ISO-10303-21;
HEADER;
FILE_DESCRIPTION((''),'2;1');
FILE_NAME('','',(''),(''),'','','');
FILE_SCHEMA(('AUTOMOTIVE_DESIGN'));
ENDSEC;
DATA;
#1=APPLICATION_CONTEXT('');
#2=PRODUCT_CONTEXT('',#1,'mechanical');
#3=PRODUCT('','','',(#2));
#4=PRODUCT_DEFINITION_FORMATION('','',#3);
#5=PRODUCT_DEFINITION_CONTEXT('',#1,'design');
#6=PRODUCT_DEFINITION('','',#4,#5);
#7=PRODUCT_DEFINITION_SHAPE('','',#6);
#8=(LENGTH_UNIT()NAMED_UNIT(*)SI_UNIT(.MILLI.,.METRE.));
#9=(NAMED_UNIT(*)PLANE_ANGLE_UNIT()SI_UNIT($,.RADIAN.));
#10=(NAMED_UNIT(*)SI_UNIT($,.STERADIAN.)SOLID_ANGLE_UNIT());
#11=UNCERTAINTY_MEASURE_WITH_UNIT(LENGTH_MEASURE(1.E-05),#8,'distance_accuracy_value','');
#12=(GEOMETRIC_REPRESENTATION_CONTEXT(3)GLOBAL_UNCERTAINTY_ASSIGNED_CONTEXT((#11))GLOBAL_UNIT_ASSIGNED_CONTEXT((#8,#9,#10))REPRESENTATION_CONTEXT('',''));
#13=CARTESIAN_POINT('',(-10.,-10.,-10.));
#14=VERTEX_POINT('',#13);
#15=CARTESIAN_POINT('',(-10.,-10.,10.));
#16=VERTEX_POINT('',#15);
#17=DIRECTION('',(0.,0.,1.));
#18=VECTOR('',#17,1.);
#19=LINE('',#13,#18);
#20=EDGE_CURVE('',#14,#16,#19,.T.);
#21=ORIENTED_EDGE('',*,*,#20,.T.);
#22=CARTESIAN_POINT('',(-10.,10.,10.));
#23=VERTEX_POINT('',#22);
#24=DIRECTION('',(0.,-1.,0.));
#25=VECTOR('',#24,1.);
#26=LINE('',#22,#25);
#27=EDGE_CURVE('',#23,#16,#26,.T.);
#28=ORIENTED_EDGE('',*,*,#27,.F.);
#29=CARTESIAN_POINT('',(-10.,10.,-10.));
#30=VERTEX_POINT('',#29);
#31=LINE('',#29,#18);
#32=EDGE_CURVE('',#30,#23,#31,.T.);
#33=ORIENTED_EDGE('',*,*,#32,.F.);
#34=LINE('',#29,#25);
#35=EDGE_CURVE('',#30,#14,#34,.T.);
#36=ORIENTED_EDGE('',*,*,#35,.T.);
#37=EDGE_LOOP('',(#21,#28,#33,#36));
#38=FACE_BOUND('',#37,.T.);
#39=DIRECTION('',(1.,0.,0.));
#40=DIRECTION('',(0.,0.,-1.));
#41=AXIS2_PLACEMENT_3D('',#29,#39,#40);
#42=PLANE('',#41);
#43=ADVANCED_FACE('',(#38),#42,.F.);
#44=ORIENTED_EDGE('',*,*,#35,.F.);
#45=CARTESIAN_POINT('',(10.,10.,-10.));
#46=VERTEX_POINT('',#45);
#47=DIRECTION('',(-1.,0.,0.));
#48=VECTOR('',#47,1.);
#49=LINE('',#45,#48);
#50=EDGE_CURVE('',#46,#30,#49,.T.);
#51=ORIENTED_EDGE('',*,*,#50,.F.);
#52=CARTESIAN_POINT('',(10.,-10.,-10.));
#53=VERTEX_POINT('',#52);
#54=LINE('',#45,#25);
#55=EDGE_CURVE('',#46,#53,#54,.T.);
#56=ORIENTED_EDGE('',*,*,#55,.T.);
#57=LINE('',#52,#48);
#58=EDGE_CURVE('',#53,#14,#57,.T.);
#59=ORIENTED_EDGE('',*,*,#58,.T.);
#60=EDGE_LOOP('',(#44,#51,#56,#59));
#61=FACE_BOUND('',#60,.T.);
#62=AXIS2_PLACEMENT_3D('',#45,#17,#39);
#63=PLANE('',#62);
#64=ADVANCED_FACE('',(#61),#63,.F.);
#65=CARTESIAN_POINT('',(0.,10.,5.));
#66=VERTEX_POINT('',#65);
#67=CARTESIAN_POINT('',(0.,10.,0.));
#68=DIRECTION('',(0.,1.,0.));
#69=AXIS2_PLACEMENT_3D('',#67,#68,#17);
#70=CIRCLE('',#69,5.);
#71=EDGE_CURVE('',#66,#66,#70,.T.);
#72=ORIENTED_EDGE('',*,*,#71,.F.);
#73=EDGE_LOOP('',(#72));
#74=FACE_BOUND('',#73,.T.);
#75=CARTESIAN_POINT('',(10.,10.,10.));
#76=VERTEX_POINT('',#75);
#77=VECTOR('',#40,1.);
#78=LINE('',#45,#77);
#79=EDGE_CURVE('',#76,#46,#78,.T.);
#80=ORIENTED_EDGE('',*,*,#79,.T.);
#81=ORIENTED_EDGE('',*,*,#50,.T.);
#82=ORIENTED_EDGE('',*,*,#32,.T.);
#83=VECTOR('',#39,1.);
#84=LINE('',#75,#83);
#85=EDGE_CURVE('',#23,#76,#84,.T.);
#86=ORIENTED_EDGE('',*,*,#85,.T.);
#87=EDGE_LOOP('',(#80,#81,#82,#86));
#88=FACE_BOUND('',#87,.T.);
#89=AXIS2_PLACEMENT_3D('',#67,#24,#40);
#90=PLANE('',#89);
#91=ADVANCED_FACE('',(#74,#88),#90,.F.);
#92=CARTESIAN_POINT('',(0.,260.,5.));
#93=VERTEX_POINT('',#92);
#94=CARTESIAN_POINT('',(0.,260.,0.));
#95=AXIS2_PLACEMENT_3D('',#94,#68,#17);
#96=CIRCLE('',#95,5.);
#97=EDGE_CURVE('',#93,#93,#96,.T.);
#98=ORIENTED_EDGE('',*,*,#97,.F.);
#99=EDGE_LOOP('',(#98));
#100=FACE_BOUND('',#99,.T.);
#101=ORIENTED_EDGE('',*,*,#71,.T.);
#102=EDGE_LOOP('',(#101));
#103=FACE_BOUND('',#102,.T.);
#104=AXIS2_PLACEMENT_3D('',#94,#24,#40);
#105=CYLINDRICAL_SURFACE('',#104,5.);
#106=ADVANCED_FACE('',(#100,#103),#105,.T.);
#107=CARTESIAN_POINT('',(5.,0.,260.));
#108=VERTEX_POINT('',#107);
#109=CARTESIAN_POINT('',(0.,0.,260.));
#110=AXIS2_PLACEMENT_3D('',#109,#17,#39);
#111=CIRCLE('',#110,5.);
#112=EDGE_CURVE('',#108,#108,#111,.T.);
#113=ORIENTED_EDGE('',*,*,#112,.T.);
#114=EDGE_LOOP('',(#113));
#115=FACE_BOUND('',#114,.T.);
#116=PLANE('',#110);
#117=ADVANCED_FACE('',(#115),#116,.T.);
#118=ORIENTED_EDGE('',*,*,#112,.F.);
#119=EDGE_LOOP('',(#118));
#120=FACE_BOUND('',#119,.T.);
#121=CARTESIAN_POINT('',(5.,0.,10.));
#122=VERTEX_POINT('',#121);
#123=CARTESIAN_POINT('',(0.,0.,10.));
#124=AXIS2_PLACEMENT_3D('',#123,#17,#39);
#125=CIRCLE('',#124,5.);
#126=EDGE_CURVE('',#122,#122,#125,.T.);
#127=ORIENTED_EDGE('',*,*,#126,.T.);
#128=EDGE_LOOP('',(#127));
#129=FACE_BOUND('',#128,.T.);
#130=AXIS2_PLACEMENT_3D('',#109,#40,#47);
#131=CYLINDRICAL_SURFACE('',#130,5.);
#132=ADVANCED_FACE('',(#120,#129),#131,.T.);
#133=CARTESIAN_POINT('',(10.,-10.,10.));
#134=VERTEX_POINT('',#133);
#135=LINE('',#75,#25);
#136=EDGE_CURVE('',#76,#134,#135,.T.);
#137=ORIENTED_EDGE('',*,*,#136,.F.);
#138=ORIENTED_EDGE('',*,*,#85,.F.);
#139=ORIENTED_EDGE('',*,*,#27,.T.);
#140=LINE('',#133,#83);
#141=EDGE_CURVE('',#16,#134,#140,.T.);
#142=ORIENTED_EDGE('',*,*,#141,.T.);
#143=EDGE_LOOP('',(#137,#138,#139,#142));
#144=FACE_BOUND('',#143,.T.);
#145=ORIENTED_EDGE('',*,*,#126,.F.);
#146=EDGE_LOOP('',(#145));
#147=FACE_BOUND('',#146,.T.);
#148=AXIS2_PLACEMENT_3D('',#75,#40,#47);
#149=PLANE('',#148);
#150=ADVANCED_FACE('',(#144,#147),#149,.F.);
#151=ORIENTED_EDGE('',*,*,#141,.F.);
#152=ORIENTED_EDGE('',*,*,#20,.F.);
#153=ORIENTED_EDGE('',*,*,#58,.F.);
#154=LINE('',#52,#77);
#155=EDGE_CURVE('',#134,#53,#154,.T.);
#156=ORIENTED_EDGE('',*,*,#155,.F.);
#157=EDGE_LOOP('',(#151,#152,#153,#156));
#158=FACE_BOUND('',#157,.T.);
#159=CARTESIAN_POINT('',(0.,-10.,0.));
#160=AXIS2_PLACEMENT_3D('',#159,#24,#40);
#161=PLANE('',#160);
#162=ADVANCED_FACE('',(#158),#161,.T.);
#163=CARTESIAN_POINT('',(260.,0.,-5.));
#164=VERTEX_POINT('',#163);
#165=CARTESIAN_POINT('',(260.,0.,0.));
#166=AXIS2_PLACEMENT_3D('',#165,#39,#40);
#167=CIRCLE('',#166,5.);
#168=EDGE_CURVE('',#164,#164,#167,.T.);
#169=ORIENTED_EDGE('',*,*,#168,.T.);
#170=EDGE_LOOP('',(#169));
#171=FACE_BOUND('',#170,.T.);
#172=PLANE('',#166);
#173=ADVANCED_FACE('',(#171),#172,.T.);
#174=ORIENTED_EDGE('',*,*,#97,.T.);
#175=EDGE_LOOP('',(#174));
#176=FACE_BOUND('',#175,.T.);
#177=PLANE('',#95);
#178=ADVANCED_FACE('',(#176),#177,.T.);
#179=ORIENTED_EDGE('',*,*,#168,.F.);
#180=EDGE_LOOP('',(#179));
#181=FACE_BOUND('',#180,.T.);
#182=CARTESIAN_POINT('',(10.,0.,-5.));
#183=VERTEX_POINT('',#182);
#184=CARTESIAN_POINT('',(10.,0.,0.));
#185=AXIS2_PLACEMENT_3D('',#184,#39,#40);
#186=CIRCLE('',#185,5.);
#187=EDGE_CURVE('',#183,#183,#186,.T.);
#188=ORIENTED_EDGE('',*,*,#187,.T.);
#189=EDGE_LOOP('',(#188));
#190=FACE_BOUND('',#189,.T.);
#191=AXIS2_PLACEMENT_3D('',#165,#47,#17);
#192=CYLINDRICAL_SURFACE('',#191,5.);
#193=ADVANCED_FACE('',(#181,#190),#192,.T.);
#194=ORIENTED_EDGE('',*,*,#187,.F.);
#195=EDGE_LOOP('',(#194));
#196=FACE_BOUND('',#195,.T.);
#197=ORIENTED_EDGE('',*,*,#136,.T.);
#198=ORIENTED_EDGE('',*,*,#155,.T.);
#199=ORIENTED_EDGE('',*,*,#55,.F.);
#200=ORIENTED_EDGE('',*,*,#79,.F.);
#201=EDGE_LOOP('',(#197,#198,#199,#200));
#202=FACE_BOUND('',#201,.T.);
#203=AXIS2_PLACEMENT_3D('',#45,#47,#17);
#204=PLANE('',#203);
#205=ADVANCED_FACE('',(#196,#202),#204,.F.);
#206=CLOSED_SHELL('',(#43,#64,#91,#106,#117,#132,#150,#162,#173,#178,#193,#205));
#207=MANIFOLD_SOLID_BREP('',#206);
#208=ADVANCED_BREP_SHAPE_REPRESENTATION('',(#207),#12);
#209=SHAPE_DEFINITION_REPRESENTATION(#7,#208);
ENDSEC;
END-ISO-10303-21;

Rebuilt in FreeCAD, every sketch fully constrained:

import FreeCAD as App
import Part
import Sketcher

doc = App.newDocument("Part")
body = doc.addObject("PartDesign::Body", "Body")

# Sketch on XZ plane
sketch1 = body.newObject("Sketcher::SketchObject", "Sketch")
sketch1.AttachmentSupport = (doc.getObject("XZ_Plane"), [""])
sketch1.MapMode = "FlatFace"
sketch1.addGeometry([
    Part.LineSegment(App.Vector(-10, -10, 0), App.Vector(-10, 10, 0)),
    Part.LineSegment(App.Vector(-10, 10, 0), App.Vector(10, 10, 0)),
    Part.LineSegment(App.Vector(10, 10, 0), App.Vector(10, -10, 0)),
    Part.LineSegment(App.Vector(10, -10, 0), App.Vector(-10, -10, 0)),
], False)
sketch1.addConstraint([
    Sketcher.Constraint("Coincident", 0, 2, 1, 1),
    Sketcher.Constraint("Coincident", 1, 2, 2, 1),
    Sketcher.Constraint("Coincident", 2, 2, 3, 1),
    Sketcher.Constraint("Coincident", 3, 2, 0, 1),
    Sketcher.Constraint("Vertical", 0),
    Sketcher.Constraint("Horizontal", 1),
    Sketcher.Constraint("Vertical", 2),
    Sketcher.Constraint("Horizontal", 3),
    Sketcher.Constraint("Symmetric", 0, 2, 2, 2, -1, 1),
    Sketcher.Constraint("Equal", 3, 0),
    Sketcher.Constraint("DistanceX", 1, 1, 1, 2, 20.0),
])
pad1 = body.newObject("PartDesign::Pad", "Pad")
pad1.Profile = sketch1
pad1.Length = 20
pad1.Midplane = True

# Sketch on YZ plane
sketch2 = body.newObject("Sketcher::SketchObject", "Sketch001")
sketch2.AttachmentSupport = (doc.getObject("YZ_Plane"), [""])
sketch2.MapMode = "FlatFace"
sketch2.AttachmentOffset = App.Placement(App.Vector(0, 0, 10), App.Rotation())
sketch2.addGeometry(Part.Circle(App.Vector(0, 0, 0), App.Vector(0, 0, 1), 5), False)
sketch2.addConstraint([
    Sketcher.Constraint("Coincident", 0, 3, -1, 1),
    Sketcher.Constraint("Diameter", 0, 10.0),
])
pad2 = body.newObject("PartDesign::Pad", "Pad001")
pad2.Profile = sketch2
pad2.Length = 250

# Sketch on XY plane
sketch3 = body.newObject("Sketcher::SketchObject", "Sketch002")
sketch3.AttachmentSupport = (doc.getObject("XY_Plane"), [""])
sketch3.MapMode = "FlatFace"
sketch3.AttachmentOffset = App.Placement(App.Vector(0, 0, 10), App.Rotation())
sketch3.addGeometry(Part.Circle(App.Vector(0, 0, 0), App.Vector(0, 0, 1), 5), False)
sketch3.addConstraint([
    Sketcher.Constraint("Coincident", 0, 3, -1, 1),
    Sketcher.Constraint("Diameter", 0, 10.0),
])
pad3 = body.newObject("PartDesign::Pad", "Pad002")
pad3.Profile = sketch3
pad3.Length = 250

# Sketch on XZ plane
sketch4 = body.newObject("Sketcher::SketchObject", "Sketch003")
sketch4.AttachmentSupport = (doc.getObject("XZ_Plane"), [""])
sketch4.MapMode = "FlatFace"
sketch4.AttachmentOffset = App.Placement(App.Vector(0, 0, -10), App.Rotation())
sketch4.addGeometry(Part.Circle(App.Vector(0, 0, 0), App.Vector(0, 0, 1), 5), False)
sketch4.addConstraint([
    Sketcher.Constraint("Coincident", 0, 3, -1, 1),
    Sketcher.Constraint("Diameter", 0, 10.0),
])
pad4 = body.newObject("PartDesign::Pad", "Pad003")
pad4.Profile = sketch4
pad4.Length = 250
pad4.Reversed = True

doc.recompute()
